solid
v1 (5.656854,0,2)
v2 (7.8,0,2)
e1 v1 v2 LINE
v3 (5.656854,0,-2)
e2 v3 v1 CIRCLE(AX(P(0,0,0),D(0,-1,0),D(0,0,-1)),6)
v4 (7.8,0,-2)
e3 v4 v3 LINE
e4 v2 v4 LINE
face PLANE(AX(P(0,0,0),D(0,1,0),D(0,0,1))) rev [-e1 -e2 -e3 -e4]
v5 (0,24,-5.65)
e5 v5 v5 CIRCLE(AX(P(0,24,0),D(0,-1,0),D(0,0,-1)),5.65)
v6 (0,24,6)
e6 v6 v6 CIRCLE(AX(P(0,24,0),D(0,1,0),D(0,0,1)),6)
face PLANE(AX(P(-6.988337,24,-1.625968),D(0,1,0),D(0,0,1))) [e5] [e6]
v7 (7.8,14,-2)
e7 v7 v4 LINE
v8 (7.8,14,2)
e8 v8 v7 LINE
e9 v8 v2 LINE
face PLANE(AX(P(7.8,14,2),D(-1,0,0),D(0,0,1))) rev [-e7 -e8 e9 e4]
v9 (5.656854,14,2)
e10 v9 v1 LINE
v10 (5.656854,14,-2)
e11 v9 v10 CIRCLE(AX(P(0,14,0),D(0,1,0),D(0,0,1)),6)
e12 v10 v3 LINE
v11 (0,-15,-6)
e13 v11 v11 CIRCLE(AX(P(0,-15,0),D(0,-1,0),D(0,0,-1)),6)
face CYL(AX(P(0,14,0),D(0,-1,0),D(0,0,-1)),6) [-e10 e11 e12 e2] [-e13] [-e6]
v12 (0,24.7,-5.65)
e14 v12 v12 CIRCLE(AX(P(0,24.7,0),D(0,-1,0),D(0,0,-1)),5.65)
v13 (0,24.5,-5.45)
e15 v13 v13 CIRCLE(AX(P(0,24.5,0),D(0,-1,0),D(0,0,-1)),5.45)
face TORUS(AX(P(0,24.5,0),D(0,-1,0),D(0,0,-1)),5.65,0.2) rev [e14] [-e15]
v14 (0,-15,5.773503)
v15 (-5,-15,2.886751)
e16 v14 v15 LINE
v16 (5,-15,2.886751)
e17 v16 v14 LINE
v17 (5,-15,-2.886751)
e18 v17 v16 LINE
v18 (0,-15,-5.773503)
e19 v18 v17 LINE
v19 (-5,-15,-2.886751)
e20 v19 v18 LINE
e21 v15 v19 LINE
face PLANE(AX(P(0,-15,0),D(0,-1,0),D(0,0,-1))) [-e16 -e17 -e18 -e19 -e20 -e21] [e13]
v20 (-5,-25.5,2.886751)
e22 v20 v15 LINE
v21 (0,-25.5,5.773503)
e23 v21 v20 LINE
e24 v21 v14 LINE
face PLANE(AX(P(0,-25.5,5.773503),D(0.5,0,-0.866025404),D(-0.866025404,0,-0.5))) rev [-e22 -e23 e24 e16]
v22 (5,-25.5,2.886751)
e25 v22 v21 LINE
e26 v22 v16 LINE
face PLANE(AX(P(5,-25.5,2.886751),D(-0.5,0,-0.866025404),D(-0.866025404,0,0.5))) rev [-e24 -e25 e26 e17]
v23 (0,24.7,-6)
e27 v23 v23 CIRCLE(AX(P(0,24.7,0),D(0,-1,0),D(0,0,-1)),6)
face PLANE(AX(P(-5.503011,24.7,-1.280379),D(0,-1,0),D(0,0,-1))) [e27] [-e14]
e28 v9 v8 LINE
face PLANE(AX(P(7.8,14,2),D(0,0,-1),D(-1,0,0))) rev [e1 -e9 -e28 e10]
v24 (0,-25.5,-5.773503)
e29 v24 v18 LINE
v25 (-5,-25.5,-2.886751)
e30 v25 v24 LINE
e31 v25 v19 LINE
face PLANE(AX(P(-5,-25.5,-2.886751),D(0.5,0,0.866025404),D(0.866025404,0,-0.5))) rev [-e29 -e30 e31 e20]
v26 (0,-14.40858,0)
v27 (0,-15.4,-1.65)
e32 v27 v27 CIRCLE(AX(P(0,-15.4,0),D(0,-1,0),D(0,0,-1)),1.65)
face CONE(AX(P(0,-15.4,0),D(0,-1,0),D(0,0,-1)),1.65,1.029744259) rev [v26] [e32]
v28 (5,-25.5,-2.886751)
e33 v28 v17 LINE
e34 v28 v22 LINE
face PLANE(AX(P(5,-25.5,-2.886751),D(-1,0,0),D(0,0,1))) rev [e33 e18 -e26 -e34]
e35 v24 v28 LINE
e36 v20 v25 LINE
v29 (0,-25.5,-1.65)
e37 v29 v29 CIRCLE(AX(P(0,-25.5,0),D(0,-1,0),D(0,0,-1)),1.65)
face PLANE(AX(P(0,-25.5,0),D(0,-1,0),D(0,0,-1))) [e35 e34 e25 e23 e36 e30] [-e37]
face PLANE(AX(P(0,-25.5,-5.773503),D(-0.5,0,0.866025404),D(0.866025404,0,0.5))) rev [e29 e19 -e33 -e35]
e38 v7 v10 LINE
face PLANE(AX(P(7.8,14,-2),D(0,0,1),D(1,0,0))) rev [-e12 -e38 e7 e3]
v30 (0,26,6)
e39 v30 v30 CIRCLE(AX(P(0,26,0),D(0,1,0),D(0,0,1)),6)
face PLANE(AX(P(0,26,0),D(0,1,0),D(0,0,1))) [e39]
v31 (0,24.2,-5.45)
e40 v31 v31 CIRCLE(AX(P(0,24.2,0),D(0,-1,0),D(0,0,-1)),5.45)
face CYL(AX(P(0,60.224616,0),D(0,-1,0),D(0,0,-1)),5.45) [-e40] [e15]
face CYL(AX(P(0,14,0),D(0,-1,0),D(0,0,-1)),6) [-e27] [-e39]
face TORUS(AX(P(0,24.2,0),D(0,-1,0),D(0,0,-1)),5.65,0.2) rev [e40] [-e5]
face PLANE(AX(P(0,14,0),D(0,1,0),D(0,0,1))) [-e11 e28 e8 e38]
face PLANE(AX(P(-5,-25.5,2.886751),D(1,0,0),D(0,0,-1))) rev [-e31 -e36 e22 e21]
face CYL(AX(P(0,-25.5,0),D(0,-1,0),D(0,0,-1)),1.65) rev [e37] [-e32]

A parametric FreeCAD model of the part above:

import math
import FreeCAD as App
import Part
import Sketcher
Q = App.Units.Quantity

doc = App.newDocument("Part")
body = doc.addObject("PartDesign::Body", "Body")

# Sketch on XZ plane
sketch1 = body.newObject("Sketcher::SketchObject", "Sketch")
sketch1.AttachmentSupport = (doc.getObject("XZ_Plane"), [""])
sketch1.MapMode = "FlatFace"
sketch1.addGeometry([
    Part.LineSegment(App.Vector(7.8, 2, 0), App.Vector(7.8, -2, 0)),
    Part.LineSegment(App.Vector(7.8, -2, 0), App.Vector(5.656854, -2, 0)),
    Part.ArcOfCircle(Part.Circle(App.Vector(0, 0, 0), App.Vector(0, 0, 1), 6), math.radians(19.471221), math.radians(340.528779)),
    Part.LineSegment(App.Vector(5.656854, 2, 0), App.Vector(7.8, 2, 0)),
], False)
sketch1.addConstraint([
    Sketcher.Constraint("Coincident", 0, 2, 1, 1),
    Sketcher.Constraint("Coincident", 1, 2, 2, 2),
    Sketcher.Constraint("Coincident", 2, 1, 3, 1),
    Sketcher.Constraint("Coincident", 3, 2, 0, 1),
    Sketcher.Constraint("Vertical", 0),
    Sketcher.Constraint("Horizontal", 1),
    Sketcher.Constraint("Horizontal", 3),
    Sketcher.Constraint("Coincident", 2, 3, -1, 1),
    Sketcher.Constraint("Vertical", 1, 2, 2, 1),
    Sketcher.Constraint("Radius", 2, Q("6 mm")),
    Sketcher.Constraint("DistanceY", 0, 2, 0, 1, Q("4 mm")),
    Sketcher.Constraint("DistanceX", -1, 1, 0, 2, Q("7.8 mm")),
])
pad1 = body.newObject("PartDesign::Pad", "Pad")
pad1.Profile = sketch1
pad1.Length = 14
pad1.Reversed = True

# Sketch on XZ plane
sketch2 = body.newObject("Sketcher::SketchObject", "Sketch001")
sketch2.AttachmentSupport = (doc.getObject("XZ_Plane"), [""])
sketch2.MapMode = "FlatFace"
sketch2.AttachmentOffset = App.Placement(App.Vector(0, 0, -14), App.Rotation())
sketch2.addGeometry(Part.Circle(App.Vector(0, 0, 0), App.Vector(0, 0, 1), 6), False)
sketch2.addConstraint([
    Sketcher.Constraint("Coincident", 0, 3, -1, 1),
    Sketcher.Constraint("Diameter", 0, Q("12 mm")),
])
pad2 = body.newObject("PartDesign::Pad", "Pad001")
pad2.Profile = sketch2
pad2.Length = 12
pad2.Reversed = True

# Sketch on XZ plane
sketch3 = body.newObject("Sketcher::SketchObject", "Sketch002")
sketch3.AttachmentSupport = (doc.getObject("XZ_Plane"), [""])
sketch3.MapMode = "FlatFace"
sketch3.AttachmentOffset = App.Placement(App.Vector(0, 0, 15), App.Rotation())
sketch3.addGeometry(Part.Circle(App.Vector(0, 0, 0), App.Vector(0, 0, 1), 6), False)
sketch3.addConstraint([
    Sketcher.Constraint("Coincident", 0, 3, -1, 1),
    Sketcher.Constraint("Diameter", 0, Q("12 mm")),
])
pad3 = body.newObject("PartDesign::Pad", "Pad002")
pad3.Profile = sketch3
pad3.Length = 15
pad3.Reversed = True

# Sketch on an angled plane
sketch4 = body.newObject("Sketcher::SketchObject", "Sketch003")
sketch4.Placement = App.Placement(App.Vector(1.604253, 12.18289, 0.37326), App.Rotation(App.Vector(-0.934326243, 0.282447697, -0.217388523), App.Vector(-0.275099609, -0.9592827, -0.064007083), App.Vector(-0.226615703, 0, 0.973984252), "ZXY"))
sketch4.addGeometry([
    Part.LineSegment(App.Vector(10.535414, -9.946397, 0), App.Vector(11.99832, -9.515664, 0)),  # 0
    Part.LineSegment(App.Vector(11.99832, -9.515664, 0), App.Vector(11.800607, -8.844166, 0)),  # 1
    Part.LineSegment(App.Vector(11.800607, -8.844166, 0), App.Vector(10.337701, -9.274899, 0)),  # 2
    Part.ArcOfCircle(Part.Circle(App.Vector(10.39419, -9.466755, 0), App.Vector(0, 0, 1), 0.2), math.radians(106.406345), math.radians(196.406345)),  # 3
    Part.LineSegment(App.Vector(10.202334, -9.523245, 0), App.Vector(10.287068, -9.81103, 0)),  # 4
    Part.ArcOfCircle(Part.Circle(App.Vector(10.478924, -9.75454, 0), App.Vector(0, 0, 1), 0.2), math.radians(-163.593655), math.radians(-73.593654)),  # 5
], False)
sketch4.addGeometry(Part.LineSegment(App.Vector(5.115467, -11.542226, 0), App.Vector(4.917753, -10.870728, 0)), True)  # axis
sketch4.addConstraint([
    Sketcher.Constraint("Coincident", 0, 2, 1, 1),
    Sketcher.Constraint("Coincident", 1, 2, 2, 1),
    Sketcher.Constraint("Tangent", 2, 2, 3, 1),
    Sketcher.Constraint("Tangent", 3, 2, 4, 1),
    Sketcher.Constraint("Tangent", 4, 2, 5, 1),
    Sketcher.Constraint("Tangent", 5, 2, 0, 1),
    Sketcher.Constraint("Equal", 3, 5),
    Sketcher.Constraint("Perpendicular", 0, 1),
    Sketcher.Constraint("Perpendicular", 1, 2),
    Sketcher.Constraint("Perpendicular", 2, 4),
    Sketcher.Constraint("Parallel", 4, 6),
    Sketcher.Constraint("Equal", 1, 6),
    Sketcher.Constraint("Radius", 3, Q("0.2 mm")),
    Sketcher.Constraint("Distance", 1, Q("0.7 mm")),
    Sketcher.Constraint("Distance", 0, Q("1.525 mm")),
    Sketcher.Constraint("DistanceX", -1, 1, 2, 2, Q("10.337701 mm")),
    Sketcher.Constraint("DistanceY", 2, 2, -1, 1, Q("9.274899 mm")),
    Sketcher.Constraint("DistanceX", 6, 1, 4, 2, Q("5.171601 mm")),
    Sketcher.Constraint("DistanceY", 6, 2, 4, 2, Q("1.059699 mm")),
    Sketcher.Constraint("DistanceX", -1, 1, 3, 3, Q("10.39419 mm")),
])
groove = body.newObject("PartDesign::Groove", "Groove")
groove.Profile = sketch4
groove.ReferenceAxis = (sketch4, ["Axis0"])
groove.Angle = 360

# Sketch on XZ plane
sketch5 = body.newObject("Sketcher::SketchObject", "Sketch004")
sketch5.AttachmentSupport = (doc.getObject("XZ_Plane"), [""])
sketch5.MapMode = "FlatFace"
sketch5.AttachmentOffset = App.Placement(App.Vector(0, 0, 15), App.Rotation())
sketch5.addGeometry([
    Part.LineSegment(App.Vector(0, 5.773503, 0), App.Vector(-5, 2.886751, 0)),  # 0
    Part.LineSegment(App.Vector(-5, 2.886751, 0), App.Vector(-5, -2.886751, 0)),  # 1
    Part.LineSegment(App.Vector(-5, -2.886751, 0), App.Vector(0, -5.773503, 0)),  # 2
    Part.LineSegment(App.Vector(0, -5.773503, 0), App.Vector(5, -2.886751, 0)),  # 3
    Part.LineSegment(App.Vector(5, -2.886751, 0), App.Vector(5, 2.886751, 0)),  # 4
    Part.LineSegment(App.Vector(5, 2.886751, 0), App.Vector(0, 5.773503, 0)),  # 5
], False)
sketch5.addConstraint([
    Sketcher.Constraint("Coincident", 0, 2, 1, 1),
    Sketcher.Constraint("Coincident", 1, 2, 2, 1),
    Sketcher.Constraint("Coincident", 2, 2, 3, 1),
    Sketcher.Constraint("Coincident", 3, 2, 4, 1),
    Sketcher.Constraint("Coincident", 4, 2, 5, 1),
    Sketcher.Constraint("Coincident", 5, 2, 0, 1),
    Sketcher.Constraint("Vertical", 1),
    Sketcher.Constraint("Vertical", 4),
    Sketcher.Constraint("Symmetric", 0, 2, 3, 2, -1, 1),
    Sketcher.Constraint("Symmetric", 2, 2, 5, 2, -1, 1),
    Sketcher.Constraint("PointOnObject", 2, 2, -2),
    Sketcher.Constraint("Parallel", 2, 5),
    Sketcher.Constraint("Horizontal", 1, 2, 3, 2),
    Sketcher.Constraint("Angle", 0, Q("-150 deg")),
    Sketcher.Constraint("DistanceX", 0, 2, -1, 1, Q("5 mm")),
    Sketcher.Constraint("DistanceY", 1, 2, 1, 1, Q("5.773503 mm")),
])
pad4 = body.newObject("PartDesign::Pad", "Pad003")
pad4.Profile = sketch5
pad4.Length = 10.5

# Sketch on XZ plane
sketch6 = body.newObject("Sketcher::SketchObject", "Sketch005")
sketch6.AttachmentSupport = (doc.getObject("XZ_Plane"), [""])
sketch6.MapMode = "FlatFace"
sketch6.AttachmentOffset = App.Placement(App.Vector(0, 0, 25.5), App.Rotation())
sketch6.addGeometry(Part.Circle(App.Vector(0, 0, 0), App.Vector(0, 0, 1), 1.65), False)
sketch6.addConstraint([
    Sketcher.Constraint("Coincident", 0, 3, -1, 1),
    Sketcher.Constraint("Diameter", 0, Q("3.3 mm")),
])
doc.recompute()
hole = body.newObject("PartDesign::Hole", "Hole")
hole.Profile = sketch6
hole.ThreadType = "None"
hole.Diameter = 3.3
hole.DepthType = "Dimension"
hole.Depth = 10.1
hole.DrillPoint = "Angled"
hole.DrillPointAngle = 118

doc.recompute()
